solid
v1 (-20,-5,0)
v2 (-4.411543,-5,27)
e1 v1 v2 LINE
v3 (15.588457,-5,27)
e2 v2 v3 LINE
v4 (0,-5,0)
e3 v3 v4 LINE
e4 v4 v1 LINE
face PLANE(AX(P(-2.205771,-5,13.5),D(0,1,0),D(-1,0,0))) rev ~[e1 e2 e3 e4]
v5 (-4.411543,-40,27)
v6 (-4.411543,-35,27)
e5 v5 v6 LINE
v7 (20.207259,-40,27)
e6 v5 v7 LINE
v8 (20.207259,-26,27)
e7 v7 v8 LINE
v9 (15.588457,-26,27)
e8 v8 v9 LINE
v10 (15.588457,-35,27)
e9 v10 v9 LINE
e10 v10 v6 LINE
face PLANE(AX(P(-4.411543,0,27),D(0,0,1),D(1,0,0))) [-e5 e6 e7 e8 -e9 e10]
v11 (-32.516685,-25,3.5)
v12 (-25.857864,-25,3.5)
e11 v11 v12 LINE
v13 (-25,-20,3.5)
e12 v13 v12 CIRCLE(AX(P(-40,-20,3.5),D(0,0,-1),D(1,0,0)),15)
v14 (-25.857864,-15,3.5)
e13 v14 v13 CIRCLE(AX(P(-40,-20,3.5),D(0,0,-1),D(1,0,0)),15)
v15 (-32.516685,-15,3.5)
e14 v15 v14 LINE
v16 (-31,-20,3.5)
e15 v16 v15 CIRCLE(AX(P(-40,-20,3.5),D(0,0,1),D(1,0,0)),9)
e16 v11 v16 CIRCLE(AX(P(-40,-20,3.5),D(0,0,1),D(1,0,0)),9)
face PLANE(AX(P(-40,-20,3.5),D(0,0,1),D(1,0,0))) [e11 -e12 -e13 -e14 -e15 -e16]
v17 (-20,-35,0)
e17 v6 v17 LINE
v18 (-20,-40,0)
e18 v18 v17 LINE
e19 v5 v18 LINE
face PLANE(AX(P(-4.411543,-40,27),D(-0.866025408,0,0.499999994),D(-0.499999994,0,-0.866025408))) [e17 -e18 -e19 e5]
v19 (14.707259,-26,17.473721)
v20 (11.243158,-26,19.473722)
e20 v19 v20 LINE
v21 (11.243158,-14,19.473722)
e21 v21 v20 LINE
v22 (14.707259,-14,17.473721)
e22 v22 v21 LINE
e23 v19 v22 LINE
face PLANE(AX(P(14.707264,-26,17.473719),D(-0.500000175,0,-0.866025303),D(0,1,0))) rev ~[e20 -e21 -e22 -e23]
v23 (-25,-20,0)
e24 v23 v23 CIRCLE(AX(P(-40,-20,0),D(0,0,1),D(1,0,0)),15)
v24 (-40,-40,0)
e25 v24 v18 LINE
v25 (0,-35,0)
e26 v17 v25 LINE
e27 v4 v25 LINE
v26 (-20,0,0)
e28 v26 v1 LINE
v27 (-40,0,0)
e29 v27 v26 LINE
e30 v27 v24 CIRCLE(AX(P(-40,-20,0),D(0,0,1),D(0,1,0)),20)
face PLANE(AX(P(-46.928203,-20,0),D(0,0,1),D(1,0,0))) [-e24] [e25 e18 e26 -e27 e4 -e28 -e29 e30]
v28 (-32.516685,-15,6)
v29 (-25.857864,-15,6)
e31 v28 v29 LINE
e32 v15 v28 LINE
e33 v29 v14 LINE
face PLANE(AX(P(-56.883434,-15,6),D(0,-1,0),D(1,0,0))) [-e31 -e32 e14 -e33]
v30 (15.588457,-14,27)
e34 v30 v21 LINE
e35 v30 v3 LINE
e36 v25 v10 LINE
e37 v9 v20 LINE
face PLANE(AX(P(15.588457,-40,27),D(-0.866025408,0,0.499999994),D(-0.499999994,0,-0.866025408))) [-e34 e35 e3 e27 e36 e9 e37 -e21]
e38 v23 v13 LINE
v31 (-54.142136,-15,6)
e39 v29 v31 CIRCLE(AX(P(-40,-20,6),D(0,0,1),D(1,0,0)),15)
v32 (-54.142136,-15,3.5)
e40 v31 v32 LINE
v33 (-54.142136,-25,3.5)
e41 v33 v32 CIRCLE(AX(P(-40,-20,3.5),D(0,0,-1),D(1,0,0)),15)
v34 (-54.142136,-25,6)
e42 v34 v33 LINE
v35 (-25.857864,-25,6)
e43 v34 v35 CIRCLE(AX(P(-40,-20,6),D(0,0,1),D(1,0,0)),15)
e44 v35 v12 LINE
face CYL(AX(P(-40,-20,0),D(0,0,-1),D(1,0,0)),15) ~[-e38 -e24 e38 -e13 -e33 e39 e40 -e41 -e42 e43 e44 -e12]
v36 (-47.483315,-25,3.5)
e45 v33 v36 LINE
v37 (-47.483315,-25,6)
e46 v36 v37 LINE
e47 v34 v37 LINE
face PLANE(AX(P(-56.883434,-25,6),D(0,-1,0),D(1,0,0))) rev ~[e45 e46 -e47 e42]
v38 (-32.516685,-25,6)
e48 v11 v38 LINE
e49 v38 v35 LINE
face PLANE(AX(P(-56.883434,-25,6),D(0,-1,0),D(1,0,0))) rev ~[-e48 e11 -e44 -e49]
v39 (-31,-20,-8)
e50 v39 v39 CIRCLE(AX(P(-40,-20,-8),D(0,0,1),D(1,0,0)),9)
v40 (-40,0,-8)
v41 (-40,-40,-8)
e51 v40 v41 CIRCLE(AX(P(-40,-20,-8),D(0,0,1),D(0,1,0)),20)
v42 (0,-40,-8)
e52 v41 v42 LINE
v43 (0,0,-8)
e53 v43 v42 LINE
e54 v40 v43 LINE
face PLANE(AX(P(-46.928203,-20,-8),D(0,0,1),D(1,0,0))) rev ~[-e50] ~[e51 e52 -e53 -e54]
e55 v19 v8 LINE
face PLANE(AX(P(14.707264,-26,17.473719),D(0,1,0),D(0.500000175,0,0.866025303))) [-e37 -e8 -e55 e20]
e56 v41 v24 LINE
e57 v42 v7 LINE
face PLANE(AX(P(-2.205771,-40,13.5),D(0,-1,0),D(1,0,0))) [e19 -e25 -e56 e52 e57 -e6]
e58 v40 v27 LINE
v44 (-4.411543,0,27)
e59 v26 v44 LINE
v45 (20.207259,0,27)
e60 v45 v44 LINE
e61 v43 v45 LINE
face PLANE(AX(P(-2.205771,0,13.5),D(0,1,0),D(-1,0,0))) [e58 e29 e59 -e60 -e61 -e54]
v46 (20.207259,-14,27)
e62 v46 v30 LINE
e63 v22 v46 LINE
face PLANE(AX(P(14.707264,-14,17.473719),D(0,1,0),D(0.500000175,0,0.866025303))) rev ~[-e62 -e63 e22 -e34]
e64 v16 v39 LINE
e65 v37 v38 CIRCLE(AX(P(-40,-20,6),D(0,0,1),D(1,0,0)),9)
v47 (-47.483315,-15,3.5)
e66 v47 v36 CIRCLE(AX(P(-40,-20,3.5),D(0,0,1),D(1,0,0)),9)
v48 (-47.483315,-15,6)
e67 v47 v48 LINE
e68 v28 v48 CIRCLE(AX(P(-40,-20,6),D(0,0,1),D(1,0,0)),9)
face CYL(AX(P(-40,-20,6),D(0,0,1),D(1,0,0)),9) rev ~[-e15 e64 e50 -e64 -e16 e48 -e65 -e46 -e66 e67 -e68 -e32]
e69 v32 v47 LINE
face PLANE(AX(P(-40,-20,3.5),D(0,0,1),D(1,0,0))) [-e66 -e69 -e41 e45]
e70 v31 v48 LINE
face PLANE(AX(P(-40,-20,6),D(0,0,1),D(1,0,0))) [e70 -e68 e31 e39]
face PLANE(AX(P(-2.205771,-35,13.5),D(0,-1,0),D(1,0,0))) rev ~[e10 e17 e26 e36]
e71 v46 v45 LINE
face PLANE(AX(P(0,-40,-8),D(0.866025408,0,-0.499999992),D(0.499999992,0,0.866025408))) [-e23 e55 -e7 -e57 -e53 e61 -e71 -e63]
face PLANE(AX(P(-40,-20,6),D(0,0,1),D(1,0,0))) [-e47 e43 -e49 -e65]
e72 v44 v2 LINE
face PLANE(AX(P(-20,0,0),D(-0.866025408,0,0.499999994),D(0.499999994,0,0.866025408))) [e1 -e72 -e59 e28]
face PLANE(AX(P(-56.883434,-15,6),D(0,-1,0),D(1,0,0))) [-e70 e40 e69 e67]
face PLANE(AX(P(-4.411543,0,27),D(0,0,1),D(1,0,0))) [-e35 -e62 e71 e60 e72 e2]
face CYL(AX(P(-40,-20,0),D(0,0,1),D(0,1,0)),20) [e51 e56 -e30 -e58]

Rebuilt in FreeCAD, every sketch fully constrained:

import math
import FreeCAD as App
import Part
import Sketcher
Q = App.Units.Quantity


def add_polygon(sketch, points):
    """Adds a closed chain of lines whose ends are joined by coincident constraints."""
    first, n = sketch.GeometryCount, len(points)
    for a, b in zip(points, points[1:] + points[:1]):
        sketch.addGeometry(Part.LineSegment(App.Vector(*a, 0), App.Vector(*b, 0)), False)
    for i in range(n):
        sketch.addConstraint(Sketcher.Constraint("Coincident", first + i, 2, first + (i + 1) % n, 1))

doc = App.newDocument("Part")
body = doc.addObject("PartDesign::Body", "Body")

# Sketch on XZ plane
sketch1 = body.newObject("Sketcher::SketchObject", "Sketch")
sketch1.AttachmentSupport = (doc.getObject("XZ_Plane"), [""])
sketch1.MapMode = "FlatFace"
add_polygon(sketch1, [(-40, 0), (-40, -8), (0, -8), (0, 0)])  # lines 0-3
sketch1.addConstraint([
    Sketcher.Constraint("Vertical", 0),
    Sketcher.Constraint("Horizontal", 1),
    Sketcher.Constraint("Vertical", 2),
    Sketcher.Constraint("Horizontal", 3),
    Sketcher.Constraint("Coincident", 2, 2, -1, 1),
    Sketcher.Constraint("DistanceX", 1, 1, 1, 2, Q("40 mm")),
    Sketcher.Constraint("DistanceY", 0, 2, 0, 1, Q("8 mm")),
])
pad1 = body.newObject("PartDesign::Pad", "Pad")
pad1.Profile = sketch1
pad1.Length = 40

# Sketch on XY plane
sketch2 = body.newObject("Sketcher::SketchObject", "Sketch001")
sketch2.AttachmentSupport = (doc.getObject("XY_Plane"), [""])
sketch2.MapMode = "FlatFace"
sketch2.addGeometry([
    Part.LineSegment(App.Vector(-40, -40, 0), App.Vector(-40, 0, 0)),
    Part.ArcOfCircle(Part.Circle(App.Vector(-40, -20, 0), App.Vector(0, 0, 1), 20), math.radians(90), math.radians(270)),
], False)
sketch2.addConstraint([
    Sketcher.Constraint("Coincident", 0, 1, 1, 2),
    Sketcher.Constraint("Coincident", 1, 1, 0, 2),
    Sketcher.Constraint("Vertical", 0),
    Sketcher.Constraint("PointOnObject", 1, 1, -1),
    Sketcher.Constraint("Vertical", 1, 3, 0, 1),
    Sketcher.Constraint("Radius", 1, Q("20 mm")),
    Sketcher.Constraint("DistanceX", 1, 3, -1, 1, Q("40 mm")),
])
pad2 = body.newObject("PartDesign::Pad", "Pad001")
pad2.Profile = sketch2
pad2.Length = 8
pad2.Reversed = True

# Sketch on XY plane
sketch3 = body.newObject("Sketcher::SketchObject", "Sketch002")
sketch3.AttachmentSupport = (doc.getObject("XY_Plane"), [""])
sketch3.MapMode = "FlatFace"
sketch3.addGeometry(Part.Circle(App.Vector(-40, -20, 0), App.Vector(0, 0, 1), 15), False)
sketch3.addConstraint([
    Sketcher.Constraint("Diameter", 0, Q("30 mm")),
    Sketcher.Constraint("DistanceX", 0, 3, -1, 1, Q("40 mm")),
    Sketcher.Constraint("DistanceY", 0, 3, -1, 1, Q("20 mm")),
])
pad3 = body.newObject("PartDesign::Pad", "Pad002")
pad3.Profile = sketch3
pad3.Length = 6

# Sketch on XY plane
sketch4 = body.newObject("Sketcher::SketchObject", "Sketch003")
sketch4.AttachmentSupport = (doc.getObject("XY_Plane"), [""])
sketch4.MapMode = "FlatFace"
sketch4.AttachmentOffset = App.Placement(App.Vector(0, 0, 6), App.Rotation())
sketch4.addGeometry(Part.Circle(App.Vector(-40, -20, 0), App.Vector(0, 0, 1), 9), False)
sketch4.addConstraint([
    Sketcher.Constraint("Diameter", 0, Q("18 mm")),
    Sketcher.Constraint("DistanceX", 0, 3, -1, 1, Q("40 mm")),
    Sketcher.Constraint("DistanceY", 0, 3, -1, 1, Q("20 mm")),
])
pocket1 = body.newObject("PartDesign::Pocket", "Pocket")
pocket1.Profile = sketch4
pocket1.Type = "ThroughAll"

# Sketch on XY plane
sketch5 = body.newObject("Sketcher::SketchObject", "Sketch004")
sketch5.AttachmentSupport = (doc.getObject("XY_Plane"), [""])
sketch5.MapMode = "FlatFace"
sketch5.AttachmentOffset = App.Placement(App.Vector(0, 0, 6), App.Rotation())
add_polygon(sketch5, [(-57, -15), (-57, -25), (-23, -25), (-23, -15)])  # lines 0-3
sketch5.addConstraint([
    Sketcher.Constraint("Vertical", 0),
    Sketcher.Constraint("Horizontal", 1),
    Sketcher.Constraint("Vertical", 2),
    Sketcher.Constraint("Horizontal", 3),
    Sketcher.Constraint("DistanceY", 0, 2, 0, 1, Q("10 mm")),
    Sketcher.Constraint("DistanceY", 0, 2, -1, 1, Q("25 mm")),
    Sketcher.Constraint("DistanceX", 1, 1, 1, 2, Q("33.766868 mm")),
    Sketcher.Constraint("DistanceX", 0, 2, -1, 1, Q("56.883434 mm")),
])
pocket2 = body.newObject("PartDesign::Pocket", "Pocket001")
pocket2.Profile = sketch5
pocket2.Length = 2.5

# Sketch on XZ plane
sketch6 = body.newObject("Sketcher::SketchObject", "Sketch005")
sketch6.AttachmentSupport = (doc.getObject("XZ_Plane"), [""])
sketch6.MapMode = "FlatFace"
sketch6.AttachmentOffset = App.Placement(App.Vector(0, 0, 40), App.Rotation())
add_polygon(sketch6, [(0, 0), (0, -8), (20.2, 27), (15.6, 27)])  # lines 0-3
sketch6.addConstraint([
    Sketcher.Constraint("Vertical", 0),
    Sketcher.Constraint("Horizontal", 2),
    Sketcher.Constraint("Coincident", 3, 2, -1, 1),
    Sketcher.Constraint("Parallel", 1, 3),
    Sketcher.Constraint("DistanceY", 0, 2, 0, 1, Q("8 mm")),
    Sketcher.Constraint("Angle", 1, Q("60.000001 deg")),
    Sketcher.Constraint("DistanceY", -1, 1, 1, 2, Q("27 mm")),
])
pad4 = body.newObject("PartDesign::Pad", "Pad003")
pad4.Profile = sketch6
pad4.Length = 40
pad4.Reversed = True

# Sketch on XZ plane
sketch7 = body.newObject("Sketcher::SketchObject", "Sketch006")
sketch7.AttachmentSupport = (doc.getObject("XZ_Plane"), [""])
sketch7.MapMode = "FlatFace"
sketch7.AttachmentOffset = App.Placement(App.Vector(0, 0, 40), App.Rotation())
add_polygon(sketch7, [(-4, 27), (-20, 0), (0, 0), (16, 27)])  # lines 0-3
sketch7.addConstraint([
    Sketcher.Constraint("Horizontal", 1),
    Sketcher.Constraint("Horizontal", 3),
    Sketcher.Constraint("Coincident", 1, 2, -1, 1),
    Sketcher.Constraint("Parallel", 0, 2),
    Sketcher.Constraint("DistanceX", 1, 1, 1, 2, Q("20 mm")),
    Sketcher.Constraint("Angle", 0, Q("-120 deg")),
    Sketcher.Constraint("DistanceY", -1, 1, 2, 2, Q("27 mm")),
])
pad5 = body.newObject("PartDesign::Pad", "Pad004")
pad5.Profile = sketch7
pad5.Length = 5
pad5.Reversed = True

# Sketch on XZ plane
sketch8 = body.newObject("Sketcher::SketchObject", "Sketch007")
sketch8.AttachmentSupport = (doc.getObject("XZ_Plane"), [""])
sketch8.MapMode = "FlatFace"
add_polygon(sketch8, [(0, 0), (-20, 0), (-4, 27), (16, 27)])  # lines 0-3
sketch8.addConstraint([
    Sketcher.Constraint("Horizontal", 0),
    Sketcher.Constraint("Horizontal", 2),
    Sketcher.Constraint("Coincident", 3, 2, -1, 1),
    Sketcher.Constraint("Parallel", 1, 3),
    Sketcher.Constraint("DistanceX", 0, 2, 0, 1, Q("20 mm")),
    Sketcher.Constraint("Angle", 1, Q("60 deg")),
    Sketcher.Constraint("DistanceY", -1, 1, 1, 2, Q("27 mm")),
])
pad6 = body.newObject("PartDesign::Pad", "Pad005")
pad6.Profile = sketch8
pad6.Length = 5

# Sketch on an angled plane
sketch9 = body.newObject("Sketcher::SketchObject", "Sketch008")
sketch9.Placement = App.Placement(App.Vector(3.464102, 0, -2), App.Rotation(App.Vector(0, 1, 0), App.Vector(0.500000175, 0, 0.866025303), App.Vector(0.866025303, 0, -0.500000175), "ZXY"))
add_polygon(sketch9, [(-26, 33), (-26, 22), (-14, 22), (-14, 33)])  # lines 0-3
sketch9.addConstraint([
    Sketcher.Constraint("Vertical", 0),
    Sketcher.Constraint("Horizontal", 1),
    Sketcher.Constraint("Vertical", 2),
    Sketcher.Constraint("Horizontal", 3),
    Sketcher.Constraint("DistanceX", 1, 1, 1, 2, Q("12 mm")),
    Sketcher.Constraint("DistanceY", 0, 2, 0, 1, Q("11 mm")),
    Sketcher.Constraint("DistanceX", 0, 2, -1, 1, Q("26 mm")),
    Sketcher.Constraint("DistanceY", -1, 1, 0, 2, Q("22.486316 mm")),
])
pocket3 = body.newObject("PartDesign::Pocket", "Pocket002")
pocket3.Profile = sketch9
pocket3.Length = 5

doc.recompute()
